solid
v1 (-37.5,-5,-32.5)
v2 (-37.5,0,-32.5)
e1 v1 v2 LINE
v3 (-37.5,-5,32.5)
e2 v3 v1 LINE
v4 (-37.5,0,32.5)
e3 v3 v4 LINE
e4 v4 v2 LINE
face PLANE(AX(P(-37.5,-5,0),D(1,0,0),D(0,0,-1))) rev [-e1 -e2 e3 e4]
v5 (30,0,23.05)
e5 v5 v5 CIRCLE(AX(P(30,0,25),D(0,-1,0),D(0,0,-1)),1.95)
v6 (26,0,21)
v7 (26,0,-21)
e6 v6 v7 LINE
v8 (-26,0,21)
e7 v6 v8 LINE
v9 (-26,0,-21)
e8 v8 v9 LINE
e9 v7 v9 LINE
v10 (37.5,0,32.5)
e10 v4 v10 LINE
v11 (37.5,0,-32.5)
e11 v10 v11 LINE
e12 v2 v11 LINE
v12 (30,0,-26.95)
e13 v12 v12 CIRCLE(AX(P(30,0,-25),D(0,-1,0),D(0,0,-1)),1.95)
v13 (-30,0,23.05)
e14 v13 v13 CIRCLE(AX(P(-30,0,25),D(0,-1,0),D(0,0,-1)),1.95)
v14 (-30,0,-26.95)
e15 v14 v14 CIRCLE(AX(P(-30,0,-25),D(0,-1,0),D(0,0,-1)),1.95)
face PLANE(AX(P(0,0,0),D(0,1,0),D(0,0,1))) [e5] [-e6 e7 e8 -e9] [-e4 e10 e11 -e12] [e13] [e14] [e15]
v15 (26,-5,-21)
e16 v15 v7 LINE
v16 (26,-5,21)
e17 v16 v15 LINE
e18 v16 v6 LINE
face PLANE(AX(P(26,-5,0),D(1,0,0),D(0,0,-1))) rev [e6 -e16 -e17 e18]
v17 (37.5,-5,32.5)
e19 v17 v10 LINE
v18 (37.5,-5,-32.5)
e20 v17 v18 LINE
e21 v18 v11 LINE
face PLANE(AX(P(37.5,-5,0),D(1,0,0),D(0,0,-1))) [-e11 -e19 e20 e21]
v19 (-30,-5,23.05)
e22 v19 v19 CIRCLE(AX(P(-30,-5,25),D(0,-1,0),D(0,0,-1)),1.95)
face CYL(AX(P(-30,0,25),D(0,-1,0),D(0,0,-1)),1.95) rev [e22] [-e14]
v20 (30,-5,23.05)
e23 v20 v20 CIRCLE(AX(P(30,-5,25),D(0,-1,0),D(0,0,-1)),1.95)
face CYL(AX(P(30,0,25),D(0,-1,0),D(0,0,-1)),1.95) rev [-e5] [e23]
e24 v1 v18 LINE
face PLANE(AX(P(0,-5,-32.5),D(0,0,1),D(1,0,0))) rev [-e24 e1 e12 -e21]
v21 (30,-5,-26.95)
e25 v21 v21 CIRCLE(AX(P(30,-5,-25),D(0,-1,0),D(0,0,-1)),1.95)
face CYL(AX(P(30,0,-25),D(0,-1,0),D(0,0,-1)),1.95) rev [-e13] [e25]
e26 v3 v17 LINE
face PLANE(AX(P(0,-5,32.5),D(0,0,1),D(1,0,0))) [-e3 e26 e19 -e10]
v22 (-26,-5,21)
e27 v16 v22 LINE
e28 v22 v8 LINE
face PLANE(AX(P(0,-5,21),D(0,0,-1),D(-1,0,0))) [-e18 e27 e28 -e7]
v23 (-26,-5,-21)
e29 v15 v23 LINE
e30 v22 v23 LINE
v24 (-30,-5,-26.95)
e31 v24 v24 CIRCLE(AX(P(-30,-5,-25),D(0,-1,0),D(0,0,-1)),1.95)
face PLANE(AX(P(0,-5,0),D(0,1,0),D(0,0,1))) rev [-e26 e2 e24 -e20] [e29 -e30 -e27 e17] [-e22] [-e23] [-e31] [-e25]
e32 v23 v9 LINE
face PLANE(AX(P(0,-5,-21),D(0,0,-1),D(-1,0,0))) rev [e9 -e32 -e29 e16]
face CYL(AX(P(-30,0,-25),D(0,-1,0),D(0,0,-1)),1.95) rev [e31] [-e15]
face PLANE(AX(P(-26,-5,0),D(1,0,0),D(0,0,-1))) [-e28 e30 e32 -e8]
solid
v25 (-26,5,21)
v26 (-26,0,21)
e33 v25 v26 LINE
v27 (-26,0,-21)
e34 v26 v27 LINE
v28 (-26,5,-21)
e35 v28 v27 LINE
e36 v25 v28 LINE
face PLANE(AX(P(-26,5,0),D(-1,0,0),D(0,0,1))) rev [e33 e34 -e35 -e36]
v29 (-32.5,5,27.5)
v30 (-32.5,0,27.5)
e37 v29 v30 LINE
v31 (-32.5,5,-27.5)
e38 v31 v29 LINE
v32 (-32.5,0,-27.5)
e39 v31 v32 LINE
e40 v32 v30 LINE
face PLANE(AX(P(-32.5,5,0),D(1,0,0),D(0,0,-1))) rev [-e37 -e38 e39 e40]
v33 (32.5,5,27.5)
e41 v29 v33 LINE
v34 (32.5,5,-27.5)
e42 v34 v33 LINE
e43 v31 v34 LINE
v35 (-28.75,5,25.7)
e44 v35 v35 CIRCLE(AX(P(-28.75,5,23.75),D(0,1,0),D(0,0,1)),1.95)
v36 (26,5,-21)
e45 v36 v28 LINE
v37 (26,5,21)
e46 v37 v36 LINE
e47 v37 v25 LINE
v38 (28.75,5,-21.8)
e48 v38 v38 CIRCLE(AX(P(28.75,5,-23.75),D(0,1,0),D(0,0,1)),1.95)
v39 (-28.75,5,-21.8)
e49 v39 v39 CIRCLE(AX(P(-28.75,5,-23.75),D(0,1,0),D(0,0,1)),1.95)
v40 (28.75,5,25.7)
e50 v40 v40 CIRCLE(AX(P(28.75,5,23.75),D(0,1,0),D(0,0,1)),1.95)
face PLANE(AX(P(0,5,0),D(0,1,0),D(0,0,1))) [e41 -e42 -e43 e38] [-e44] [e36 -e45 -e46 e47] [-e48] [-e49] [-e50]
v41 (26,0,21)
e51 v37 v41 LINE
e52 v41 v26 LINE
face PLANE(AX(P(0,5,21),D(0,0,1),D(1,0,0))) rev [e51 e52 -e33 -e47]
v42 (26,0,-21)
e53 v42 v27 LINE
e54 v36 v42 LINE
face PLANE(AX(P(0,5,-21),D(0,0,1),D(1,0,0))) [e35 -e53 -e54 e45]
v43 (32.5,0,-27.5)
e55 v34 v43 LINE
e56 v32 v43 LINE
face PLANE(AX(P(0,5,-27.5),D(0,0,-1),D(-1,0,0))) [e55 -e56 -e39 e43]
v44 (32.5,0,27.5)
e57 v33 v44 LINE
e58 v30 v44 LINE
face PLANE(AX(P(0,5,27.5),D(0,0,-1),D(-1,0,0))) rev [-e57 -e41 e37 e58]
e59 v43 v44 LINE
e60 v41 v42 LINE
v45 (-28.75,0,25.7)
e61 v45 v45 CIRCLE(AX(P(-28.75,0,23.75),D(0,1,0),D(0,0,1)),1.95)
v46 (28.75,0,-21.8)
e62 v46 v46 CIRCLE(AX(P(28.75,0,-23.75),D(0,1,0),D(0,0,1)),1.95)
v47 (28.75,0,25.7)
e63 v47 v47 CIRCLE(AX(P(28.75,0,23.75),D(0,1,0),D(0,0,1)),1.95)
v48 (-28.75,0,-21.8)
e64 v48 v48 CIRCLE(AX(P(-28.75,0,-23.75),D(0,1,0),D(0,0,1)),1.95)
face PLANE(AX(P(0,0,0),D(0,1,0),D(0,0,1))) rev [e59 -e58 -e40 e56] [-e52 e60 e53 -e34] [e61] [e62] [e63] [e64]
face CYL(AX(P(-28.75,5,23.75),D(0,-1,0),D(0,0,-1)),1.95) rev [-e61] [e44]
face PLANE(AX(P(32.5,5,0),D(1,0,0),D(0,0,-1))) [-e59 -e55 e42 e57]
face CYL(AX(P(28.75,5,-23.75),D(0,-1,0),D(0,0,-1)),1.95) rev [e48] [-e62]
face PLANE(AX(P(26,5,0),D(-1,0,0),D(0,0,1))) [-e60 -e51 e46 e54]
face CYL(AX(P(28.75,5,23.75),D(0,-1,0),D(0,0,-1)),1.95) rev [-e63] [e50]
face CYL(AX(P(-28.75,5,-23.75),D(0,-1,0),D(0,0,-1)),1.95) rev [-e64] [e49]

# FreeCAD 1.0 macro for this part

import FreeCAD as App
import Part
import Sketcher

V = App.Vector
Q = App.Units.Quantity


def add_polygon(sketch, points):
    """Adds a closed chain of lines whose ends are joined by coincident constraints."""
    first, n = sketch.GeometryCount, len(points)
    for a, b in zip(points, points[1:] + points[:1]):
        sketch.addGeometry(Part.LineSegment(App.Vector(*a, 0), App.Vector(*b, 0)), False)
    for i in range(n):
        sketch.addConstraint(Sketcher.Constraint("Coincident", first + i, 2, first + (i + 1) % n, 1))

doc = App.newDocument("Part")
params = doc.addObject("Spreadsheet::Sheet", "Params")
for row, (alias, value) in enumerate([
    ("sketch1_diameter", "3.9 mm"),
    ("sketch1_width", "65 mm"),
    ("sketch1_width2", "52 mm"),
    ("sketch1_height", "55 mm"),
    ("sketch1_height2", "42 mm"),
    ("pad1_length", "5 mm"),
    ("sketch2_width", "75 mm"),
    ("sketch2_width2", "52 mm"),
    ("sketch2_height", "65 mm"),
    ("sketch2_height2", "42 mm"),
    ("pad2_length", "5 mm"),
    ("sketch3_diameter", "3.9 mm"),
    ("pocket1_length", "5 mm"),
], start=1):
    params.set(f"A{row}", alias)
    params.set(f"B{row}", "=" + value)
    params.setAlias(f"B{row}", alias)

body = doc.addObject("PartDesign::Body", "Body")

sketch1 = body.newObject("Sketcher::SketchObject", "Sketch")
sketch1.AttachmentSupport = (doc.getObject("XZ_Plane"), [""])
sketch1.MapMode = "FlatFace"
add_polygon(sketch1, [(-32.5, -27.5), (-32.5, 27.5), (32.5, 27.5), (32.5, -27.5)])
sketch1.addGeometry(Part.Circle(V(-28.8, 23.8, 0), V(0, 0, 1), 1.9), False)
sketch1.addGeometry(Part.Circle(V(28.8, 23.8, 0), V(0, 0, 1), 1.9), False)
sketch1.addGeometry(Part.Circle(V(-28.8, -23.8, 0), V(0, 0, 1), 1.9), False)
add_polygon(sketch1, [(26, 21), (-26, 21), (-26, -21), (26, -21)])
sketch1.addGeometry(Part.Circle(V(28.8, -23.8, 0), V(0, 0, 1), 1.9), False)
sketch1.addConstraint([
    Sketcher.Constraint("Vertical", 0),
    Sketcher.Constraint("Horizontal", 1),
    Sketcher.Constraint("Vertical", 2),
    Sketcher.Constraint("Horizontal", 3),
    Sketcher.Constraint("Horizontal", 7),
    Sketcher.Constraint("Vertical", 8),
    Sketcher.Constraint("Horizontal", 9),
    Sketcher.Constraint("Vertical", 10),
    Sketcher.Constraint("Equal", 4, 5),
    Sketcher.Constraint("Equal", 5, 6),
    Sketcher.Constraint("Equal", 6, 11),
    Sketcher.Constraint("Symmetric", 5, 3, 6, 3, -1, 1),
    Sketcher.Constraint("Symmetric", 4, 3, 11, 3, -1, 1),
    Sketcher.Constraint("Symmetric", 0, 2, 2, 2, -1, 1),
    Sketcher.Constraint("Symmetric", 7, 2, 9, 2, -1, 1),
    Sketcher.Constraint("Symmetric", 4, 3, 5, 3, -2),
    Sketcher.Constraint("Diameter", 4, Q("3.9 mm")),
    Sketcher.Constraint("DistanceX", 1, 1, 1, 2, Q("65 mm")),
    Sketcher.Constraint("DistanceX", 7, 2, 7, 1, Q("52 mm")),
    Sketcher.Constraint("DistanceY", 0, 1, 0, 2, Q("55 mm")),
    Sketcher.Constraint("DistanceY", 8, 2, 8, 1, Q("42 mm")),
    Sketcher.Constraint("DistanceX", 4, 3, 5, 3, Q("57.5 mm")),
    Sketcher.Constraint("DistanceY", 6, 3, 4, 3, Q("47.5 mm")),
])
sketch1.setExpression("Constraints[24]", "Params.sketch1_diameter")
sketch1.setExpression("Constraints[25]", "Params.sketch1_width")
sketch1.setExpression("Constraints[26]", "Params.sketch1_width2")
sketch1.setExpression("Constraints[27]", "Params.sketch1_height")
sketch1.setExpression("Constraints[28]", "Params.sketch1_height2")
pad1 = body.newObject("PartDesign::Pad", "Pad")
pad1.Profile = sketch1
pad1.setExpression("Length", "Params.pad1_length")
pad1.Reversed = True
body2 = doc.addObject("PartDesign::Body", "Body001")

sketch2 = body2.newObject("Sketcher::SketchObject", "Sketch001")
sketch2.AttachmentSupport = (doc.getObject("XZ_Plane001"), [""])
sketch2.MapMode = "FlatFace"
add_polygon(sketch2, [(-38, -32), (-38, 32), (38, 32), (38, -32)])
add_polygon(sketch2, [(26, 21), (-26, 21), (-26, -21), (26, -21)])
sketch2.addConstraint([
    Sketcher.Constraint("Vertical", 0),
    Sketcher.Constraint("Horizontal", 1),
    Sketcher.Constraint("Vertical", 2),
    Sketcher.Constraint("Horizontal", 3),
    Sketcher.Constraint("Horizontal", 4),
    Sketcher.Constraint("Vertical", 5),
    Sketcher.Constraint("Horizontal", 6),
    Sketcher.Constraint("Vertical", 7),
    Sketcher.Constraint("Symmetric", 0, 2, 2, 2, -1, 1),
    Sketcher.Constraint("Symmetric", 4, 2, 6, 2, -1, 1),
    Sketcher.Constraint("DistanceX", 1, 1, 1, 2, Q("75 mm")),
    Sketcher.Constraint("DistanceX", 4, 2, 4, 1, Q("52 mm")),
    Sketcher.Constraint("DistanceY", 0, 1, 0, 2, Q("65 mm")),
    Sketcher.Constraint("DistanceY", 5, 2, 5, 1, Q("42 mm")),
])
sketch2.setExpression("Constraints[18]", "Params.sketch2_width")
sketch2.setExpression("Constraints[19]", "Params.sketch2_width2")
sketch2.setExpression("Constraints[20]", "Params.sketch2_height")
sketch2.setExpression("Constraints[21]", "Params.sketch2_height2")
pad2 = body2.newObject("PartDesign::Pad", "Pad001")
pad2.Profile = sketch2
pad2.setExpression("Length", "Params.pad2_length")

sketch3 = body2.newObject("Sketcher::SketchObject", "Sketch002")
sketch3.AttachmentSupport = (doc.getObject("XZ_Plane001"), [""])
sketch3.MapMode = "FlatFace"
sketch3.AttachmentOffset = App.Placement(V(0, 0, 5), App.Rotation())
sketch3.addGeometry([
    Part.Circle(V(-30, 25, 0), V(0, 0, 1), 1.9),
    Part.Circle(V(30, 25, 0), V(0, 0, 1), 1.9),
    Part.Circle(V(-30, -25, 0), V(0, 0, 1), 1.9),
    Part.Circle(V(30, -25, 0), V(0, 0, 1), 1.9),
], False)
sketch3.addConstraint([
    Sketcher.Constraint("Equal", 0, 1),
    Sketcher.Constraint("Equal", 1, 2),
    Sketcher.Constraint("Equal", 2, 3),
    Sketcher.Constraint("Symmetric", 1, 3, 2, 3, -1, 1),
    Sketcher.Constraint("Symmetric", 0, 3, 3, 3, -1, 1),
    Sketcher.Constraint("Symmetric", 0, 3, 1, 3, -2),
    Sketcher.Constraint("Diameter", 0, Q("3.9 mm")),
    Sketcher.Constraint("DistanceX", 0, 3, -1, 1, Q("30 mm")),
    Sketcher.Constraint("DistanceY", -1, 1, 0, 3, Q("25 mm")),
])
sketch3.setExpression("Constraints[6]", "Params.sketch3_diameter")
pocket1 = body2.newObject("PartDesign::Pocket", "Pocket")
pocket1.Profile = sketch3
pocket1.setExpression("Length", "Params.pocket1_length")

doc.recompute()
